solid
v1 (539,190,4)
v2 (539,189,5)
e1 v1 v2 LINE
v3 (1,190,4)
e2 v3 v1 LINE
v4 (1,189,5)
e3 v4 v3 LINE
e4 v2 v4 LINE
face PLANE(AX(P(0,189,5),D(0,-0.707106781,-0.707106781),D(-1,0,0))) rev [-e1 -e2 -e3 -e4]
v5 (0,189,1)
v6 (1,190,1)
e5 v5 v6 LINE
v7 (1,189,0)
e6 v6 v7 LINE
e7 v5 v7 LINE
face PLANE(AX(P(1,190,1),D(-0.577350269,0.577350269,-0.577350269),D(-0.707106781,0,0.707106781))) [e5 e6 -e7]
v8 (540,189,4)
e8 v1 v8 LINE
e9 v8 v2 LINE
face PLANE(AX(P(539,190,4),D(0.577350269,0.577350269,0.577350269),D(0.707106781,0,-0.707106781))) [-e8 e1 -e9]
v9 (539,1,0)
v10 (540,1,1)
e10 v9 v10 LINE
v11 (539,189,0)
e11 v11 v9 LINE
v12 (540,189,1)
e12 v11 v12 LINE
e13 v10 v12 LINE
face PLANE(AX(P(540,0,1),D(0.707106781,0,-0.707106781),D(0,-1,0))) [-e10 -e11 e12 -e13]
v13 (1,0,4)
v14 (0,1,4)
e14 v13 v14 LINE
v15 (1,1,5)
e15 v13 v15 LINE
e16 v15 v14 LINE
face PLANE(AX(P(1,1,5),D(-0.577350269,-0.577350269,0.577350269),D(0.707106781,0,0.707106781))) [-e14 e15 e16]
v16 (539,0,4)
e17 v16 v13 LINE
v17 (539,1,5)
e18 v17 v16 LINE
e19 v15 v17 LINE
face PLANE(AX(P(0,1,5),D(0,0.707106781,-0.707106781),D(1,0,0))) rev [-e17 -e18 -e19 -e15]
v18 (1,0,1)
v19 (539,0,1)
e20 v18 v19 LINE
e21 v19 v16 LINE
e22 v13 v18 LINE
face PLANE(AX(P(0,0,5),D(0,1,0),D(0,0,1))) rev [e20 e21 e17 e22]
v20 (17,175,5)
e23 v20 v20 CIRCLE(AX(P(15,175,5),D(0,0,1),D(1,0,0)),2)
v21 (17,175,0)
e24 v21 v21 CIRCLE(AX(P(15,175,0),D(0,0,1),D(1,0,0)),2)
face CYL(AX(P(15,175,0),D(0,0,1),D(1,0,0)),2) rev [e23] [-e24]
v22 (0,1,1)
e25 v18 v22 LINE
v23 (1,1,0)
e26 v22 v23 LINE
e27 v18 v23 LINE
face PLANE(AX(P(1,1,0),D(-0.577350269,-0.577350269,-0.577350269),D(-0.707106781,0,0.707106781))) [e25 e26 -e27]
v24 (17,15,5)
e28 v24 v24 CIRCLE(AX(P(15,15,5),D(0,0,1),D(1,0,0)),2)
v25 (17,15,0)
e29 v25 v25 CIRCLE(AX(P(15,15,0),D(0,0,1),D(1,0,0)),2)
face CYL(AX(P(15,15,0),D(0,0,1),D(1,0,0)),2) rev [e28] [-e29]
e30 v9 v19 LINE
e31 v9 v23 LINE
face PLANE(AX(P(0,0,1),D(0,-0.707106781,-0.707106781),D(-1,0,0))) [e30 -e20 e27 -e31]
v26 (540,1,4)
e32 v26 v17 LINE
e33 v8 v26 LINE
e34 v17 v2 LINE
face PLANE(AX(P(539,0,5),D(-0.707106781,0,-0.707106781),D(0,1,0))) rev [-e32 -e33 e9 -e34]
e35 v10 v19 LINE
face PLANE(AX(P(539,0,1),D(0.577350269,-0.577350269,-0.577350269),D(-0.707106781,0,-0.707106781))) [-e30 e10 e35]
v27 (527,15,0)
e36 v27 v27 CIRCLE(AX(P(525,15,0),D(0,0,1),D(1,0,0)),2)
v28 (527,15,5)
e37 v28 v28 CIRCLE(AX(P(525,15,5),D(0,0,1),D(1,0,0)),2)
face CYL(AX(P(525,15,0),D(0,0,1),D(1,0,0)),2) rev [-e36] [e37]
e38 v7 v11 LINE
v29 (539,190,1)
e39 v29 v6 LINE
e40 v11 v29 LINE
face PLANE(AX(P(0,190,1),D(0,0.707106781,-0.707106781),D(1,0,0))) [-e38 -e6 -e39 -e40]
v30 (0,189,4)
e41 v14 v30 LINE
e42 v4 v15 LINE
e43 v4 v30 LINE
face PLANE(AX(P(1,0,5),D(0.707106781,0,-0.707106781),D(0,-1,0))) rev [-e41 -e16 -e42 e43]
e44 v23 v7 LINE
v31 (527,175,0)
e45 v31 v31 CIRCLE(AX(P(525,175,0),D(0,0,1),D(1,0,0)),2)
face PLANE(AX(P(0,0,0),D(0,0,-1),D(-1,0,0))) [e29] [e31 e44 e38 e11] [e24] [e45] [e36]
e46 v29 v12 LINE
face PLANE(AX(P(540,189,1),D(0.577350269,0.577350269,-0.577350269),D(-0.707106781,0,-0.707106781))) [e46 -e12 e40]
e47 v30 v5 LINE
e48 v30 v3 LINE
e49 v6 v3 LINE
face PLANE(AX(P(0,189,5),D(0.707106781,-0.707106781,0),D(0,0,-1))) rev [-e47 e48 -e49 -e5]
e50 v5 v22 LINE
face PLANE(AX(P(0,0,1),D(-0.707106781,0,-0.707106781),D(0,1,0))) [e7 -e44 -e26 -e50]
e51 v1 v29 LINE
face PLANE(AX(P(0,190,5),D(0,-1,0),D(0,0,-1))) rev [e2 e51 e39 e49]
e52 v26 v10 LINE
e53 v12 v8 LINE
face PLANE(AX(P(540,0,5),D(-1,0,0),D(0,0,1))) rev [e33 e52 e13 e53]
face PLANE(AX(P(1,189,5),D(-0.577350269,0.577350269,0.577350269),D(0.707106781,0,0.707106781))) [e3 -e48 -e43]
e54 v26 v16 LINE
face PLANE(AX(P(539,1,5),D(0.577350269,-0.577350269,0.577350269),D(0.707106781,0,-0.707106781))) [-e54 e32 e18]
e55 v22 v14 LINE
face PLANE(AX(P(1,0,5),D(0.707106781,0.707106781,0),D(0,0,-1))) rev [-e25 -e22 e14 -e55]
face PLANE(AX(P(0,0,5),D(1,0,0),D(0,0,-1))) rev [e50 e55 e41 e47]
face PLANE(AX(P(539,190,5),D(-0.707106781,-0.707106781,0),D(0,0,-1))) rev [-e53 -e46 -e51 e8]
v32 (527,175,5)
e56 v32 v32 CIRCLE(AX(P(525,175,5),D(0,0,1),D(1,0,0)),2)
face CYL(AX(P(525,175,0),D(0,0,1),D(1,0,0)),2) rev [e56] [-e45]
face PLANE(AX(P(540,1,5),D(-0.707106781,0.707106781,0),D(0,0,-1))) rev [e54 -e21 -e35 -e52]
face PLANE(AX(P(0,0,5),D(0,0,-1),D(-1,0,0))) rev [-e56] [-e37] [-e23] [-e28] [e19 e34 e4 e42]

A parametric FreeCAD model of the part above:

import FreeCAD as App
import Part
import Sketcher

V = App.Vector
Q = App.Units.Quantity

doc = App.newDocument("Part")
body = doc.addObject("PartDesign::Body", "Body")

# Sketch on XY plane
sketch1 = body.newObject("Sketcher::SketchObject", "Sketch")
sketch1.AttachmentSupport = (doc.getObject("XY_Plane"), [""])
sketch1.MapMode = "FlatFace"
sketch1.addGeometry([
    Part.LineSegment(V(0, 190, 0), V(0, 0, 0)),
    Part.LineSegment(V(0, 0, 0), V(540, 0, 0)),
    Part.LineSegment(V(540, 0, 0), V(540, 190, 0)),
    Part.LineSegment(V(540, 190, 0), V(0, 190, 0)),
], False)
sketch1.addConstraint([
    Sketcher.Constraint("Coincident", 0, 2, 1, 1),
    Sketcher.Constraint("Coincident", 1, 2, 2, 1),
    Sketcher.Constraint("Coincident", 2, 2, 3, 1),
    Sketcher.Constraint("Coincident", 3, 2, 0, 1),
    Sketcher.Constraint("Vertical", 0),
    Sketcher.Constraint("Horizontal", 1),
    Sketcher.Constraint("Vertical", 2),
    Sketcher.Constraint("Horizontal", 3),
    Sketcher.Constraint("Coincident", 0, 2, -1, 1),
    Sketcher.Constraint("DistanceX", 1, 1, 1, 2, Q("540 mm")),
    Sketcher.Constraint("DistanceY", 0, 2, 0, 1, Q("190 mm")),
])
pad1 = body.newObject("PartDesign::Pad", "Pad")
pad1.Profile = sketch1
pad1.Length = 5
doc.recompute()

chamfer = body.newObject("PartDesign::Chamfer", "Chamfer")
chamfer.Base = (pad1, ["Edge1"])
chamfer.UseAllEdges = True
chamfer.Size = 1

# Sketch on XY plane
sketch2 = body.newObject("Sketcher::SketchObject", "Sketch001")
sketch2.AttachmentSupport = (doc.getObject("XY_Plane"), [""])
sketch2.MapMode = "FlatFace"
sketch2.AttachmentOffset = App.Placement(V(0, 0, 5), App.Rotation())
sketch2.addGeometry([
    Part.Circle(V(525, 175, 0), V(0, 0, 1), 2),
    Part.Circle(V(525, 15, 0), V(0, 0, 1), 2),
    Part.Circle(V(15, 175, 0), V(0, 0, 1), 2),
    Part.Circle(V(15, 15, 0), V(0, 0, 1), 2),
], False)
sketch2.addConstraint([
    Sketcher.Constraint("Equal", 0, 1),
    Sketcher.Constraint("Equal", 1, 2),
    Sketcher.Constraint("Equal", 2, 3),
    Sketcher.Constraint("Horizontal", 0, 3, 2, 3),
    Sketcher.Constraint("Horizontal", 1, 3, 3, 3),
    Sketcher.Constraint("Vertical", 0, 3, 1, 3),
    Sketcher.Constraint("Vertical", 2, 3, 3, 3),
    Sketcher.Constraint("Diameter", 0, Q("4 mm")),
    Sketcher.Constraint("DistanceX", -1, 1, 0, 3, Q("525 mm")),
    Sketcher.Constraint("DistanceY", -1, 1, 0, 3, Q("175 mm")),
    Sketcher.Constraint("DistanceY", -1, 1, 1, 3, Q("15 mm")),
    Sketcher.Constraint("DistanceX", -1, 1, 2, 3, Q("15 mm")),
])
pocket1 = body.newObject("PartDesign::Pocket", "Pocket")
pocket1.Profile = sketch2
pocket1.Length = 5

doc.recompute()
